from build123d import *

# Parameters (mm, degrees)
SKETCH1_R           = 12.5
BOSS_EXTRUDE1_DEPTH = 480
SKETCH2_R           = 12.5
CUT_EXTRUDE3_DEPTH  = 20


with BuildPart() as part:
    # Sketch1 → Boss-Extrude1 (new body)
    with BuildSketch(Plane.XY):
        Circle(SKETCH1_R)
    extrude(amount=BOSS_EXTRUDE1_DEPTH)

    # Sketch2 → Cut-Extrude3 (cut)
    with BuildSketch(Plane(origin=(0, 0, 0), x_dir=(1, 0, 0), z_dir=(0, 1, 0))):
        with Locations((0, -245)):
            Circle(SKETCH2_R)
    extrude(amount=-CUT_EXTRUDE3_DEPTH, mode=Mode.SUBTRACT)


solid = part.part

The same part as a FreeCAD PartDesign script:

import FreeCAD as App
import Part
import Sketcher
from FreeCAD import Vector

doc = App.newDocument("Part")
body = doc.addObject("PartDesign::Body", "Body")

# Sketch on XY plane
sketch1 = doc.addObject("Sketcher::SketchObject", "Sketch")
body.addObject(sketch1)
sketch1.AttachmentSupport = (doc.XY_Plane, [""])
sketch1.MapMode = "FlatFace"
sketch1.addGeometry(Part.Circle(Vector(0, 0, 0), Vector(0, 0, 1), 12.5), False)
sketch1.addConstraint([
    Sketcher.Constraint("Coincident", 0, 3, -1, 1),
    Sketcher.Constraint("Diameter", 0, 25.0),
])
pad1 = doc.addObject("PartDesign::Pad", "Pad")
body.addObject(pad1)
pad1.Profile = sketch1
pad1.Length = 480

# Sketch on XZ plane
sketch2 = doc.addObject("Sketcher::SketchObject", "Sketch001")
body.addObject(sketch2)
sketch2.AttachmentSupport = (doc.XZ_Plane, [""])
sketch2.MapMode = "FlatFace"
sketch2.addGeometry(Part.Circle(Vector(0, 245, 0), Vector(0, 0, 1), 12.5), False)
sketch2.addConstraint([
    Sketcher.Constraint("PointOnObject", 0, 3, -2),
    Sketcher.Constraint("Diameter", 0, 25.0),
    Sketcher.Constraint("DistanceY", -1, 1, 0, 3, 245.0),
])
pocket1 = doc.addObject("PartDesign::Pocket", "Pocket")
body.addObject(pocket1)
pocket1.Profile = sketch2
pocket1.Length = 20
pocket1.Reversed = True

doc.recompute()
